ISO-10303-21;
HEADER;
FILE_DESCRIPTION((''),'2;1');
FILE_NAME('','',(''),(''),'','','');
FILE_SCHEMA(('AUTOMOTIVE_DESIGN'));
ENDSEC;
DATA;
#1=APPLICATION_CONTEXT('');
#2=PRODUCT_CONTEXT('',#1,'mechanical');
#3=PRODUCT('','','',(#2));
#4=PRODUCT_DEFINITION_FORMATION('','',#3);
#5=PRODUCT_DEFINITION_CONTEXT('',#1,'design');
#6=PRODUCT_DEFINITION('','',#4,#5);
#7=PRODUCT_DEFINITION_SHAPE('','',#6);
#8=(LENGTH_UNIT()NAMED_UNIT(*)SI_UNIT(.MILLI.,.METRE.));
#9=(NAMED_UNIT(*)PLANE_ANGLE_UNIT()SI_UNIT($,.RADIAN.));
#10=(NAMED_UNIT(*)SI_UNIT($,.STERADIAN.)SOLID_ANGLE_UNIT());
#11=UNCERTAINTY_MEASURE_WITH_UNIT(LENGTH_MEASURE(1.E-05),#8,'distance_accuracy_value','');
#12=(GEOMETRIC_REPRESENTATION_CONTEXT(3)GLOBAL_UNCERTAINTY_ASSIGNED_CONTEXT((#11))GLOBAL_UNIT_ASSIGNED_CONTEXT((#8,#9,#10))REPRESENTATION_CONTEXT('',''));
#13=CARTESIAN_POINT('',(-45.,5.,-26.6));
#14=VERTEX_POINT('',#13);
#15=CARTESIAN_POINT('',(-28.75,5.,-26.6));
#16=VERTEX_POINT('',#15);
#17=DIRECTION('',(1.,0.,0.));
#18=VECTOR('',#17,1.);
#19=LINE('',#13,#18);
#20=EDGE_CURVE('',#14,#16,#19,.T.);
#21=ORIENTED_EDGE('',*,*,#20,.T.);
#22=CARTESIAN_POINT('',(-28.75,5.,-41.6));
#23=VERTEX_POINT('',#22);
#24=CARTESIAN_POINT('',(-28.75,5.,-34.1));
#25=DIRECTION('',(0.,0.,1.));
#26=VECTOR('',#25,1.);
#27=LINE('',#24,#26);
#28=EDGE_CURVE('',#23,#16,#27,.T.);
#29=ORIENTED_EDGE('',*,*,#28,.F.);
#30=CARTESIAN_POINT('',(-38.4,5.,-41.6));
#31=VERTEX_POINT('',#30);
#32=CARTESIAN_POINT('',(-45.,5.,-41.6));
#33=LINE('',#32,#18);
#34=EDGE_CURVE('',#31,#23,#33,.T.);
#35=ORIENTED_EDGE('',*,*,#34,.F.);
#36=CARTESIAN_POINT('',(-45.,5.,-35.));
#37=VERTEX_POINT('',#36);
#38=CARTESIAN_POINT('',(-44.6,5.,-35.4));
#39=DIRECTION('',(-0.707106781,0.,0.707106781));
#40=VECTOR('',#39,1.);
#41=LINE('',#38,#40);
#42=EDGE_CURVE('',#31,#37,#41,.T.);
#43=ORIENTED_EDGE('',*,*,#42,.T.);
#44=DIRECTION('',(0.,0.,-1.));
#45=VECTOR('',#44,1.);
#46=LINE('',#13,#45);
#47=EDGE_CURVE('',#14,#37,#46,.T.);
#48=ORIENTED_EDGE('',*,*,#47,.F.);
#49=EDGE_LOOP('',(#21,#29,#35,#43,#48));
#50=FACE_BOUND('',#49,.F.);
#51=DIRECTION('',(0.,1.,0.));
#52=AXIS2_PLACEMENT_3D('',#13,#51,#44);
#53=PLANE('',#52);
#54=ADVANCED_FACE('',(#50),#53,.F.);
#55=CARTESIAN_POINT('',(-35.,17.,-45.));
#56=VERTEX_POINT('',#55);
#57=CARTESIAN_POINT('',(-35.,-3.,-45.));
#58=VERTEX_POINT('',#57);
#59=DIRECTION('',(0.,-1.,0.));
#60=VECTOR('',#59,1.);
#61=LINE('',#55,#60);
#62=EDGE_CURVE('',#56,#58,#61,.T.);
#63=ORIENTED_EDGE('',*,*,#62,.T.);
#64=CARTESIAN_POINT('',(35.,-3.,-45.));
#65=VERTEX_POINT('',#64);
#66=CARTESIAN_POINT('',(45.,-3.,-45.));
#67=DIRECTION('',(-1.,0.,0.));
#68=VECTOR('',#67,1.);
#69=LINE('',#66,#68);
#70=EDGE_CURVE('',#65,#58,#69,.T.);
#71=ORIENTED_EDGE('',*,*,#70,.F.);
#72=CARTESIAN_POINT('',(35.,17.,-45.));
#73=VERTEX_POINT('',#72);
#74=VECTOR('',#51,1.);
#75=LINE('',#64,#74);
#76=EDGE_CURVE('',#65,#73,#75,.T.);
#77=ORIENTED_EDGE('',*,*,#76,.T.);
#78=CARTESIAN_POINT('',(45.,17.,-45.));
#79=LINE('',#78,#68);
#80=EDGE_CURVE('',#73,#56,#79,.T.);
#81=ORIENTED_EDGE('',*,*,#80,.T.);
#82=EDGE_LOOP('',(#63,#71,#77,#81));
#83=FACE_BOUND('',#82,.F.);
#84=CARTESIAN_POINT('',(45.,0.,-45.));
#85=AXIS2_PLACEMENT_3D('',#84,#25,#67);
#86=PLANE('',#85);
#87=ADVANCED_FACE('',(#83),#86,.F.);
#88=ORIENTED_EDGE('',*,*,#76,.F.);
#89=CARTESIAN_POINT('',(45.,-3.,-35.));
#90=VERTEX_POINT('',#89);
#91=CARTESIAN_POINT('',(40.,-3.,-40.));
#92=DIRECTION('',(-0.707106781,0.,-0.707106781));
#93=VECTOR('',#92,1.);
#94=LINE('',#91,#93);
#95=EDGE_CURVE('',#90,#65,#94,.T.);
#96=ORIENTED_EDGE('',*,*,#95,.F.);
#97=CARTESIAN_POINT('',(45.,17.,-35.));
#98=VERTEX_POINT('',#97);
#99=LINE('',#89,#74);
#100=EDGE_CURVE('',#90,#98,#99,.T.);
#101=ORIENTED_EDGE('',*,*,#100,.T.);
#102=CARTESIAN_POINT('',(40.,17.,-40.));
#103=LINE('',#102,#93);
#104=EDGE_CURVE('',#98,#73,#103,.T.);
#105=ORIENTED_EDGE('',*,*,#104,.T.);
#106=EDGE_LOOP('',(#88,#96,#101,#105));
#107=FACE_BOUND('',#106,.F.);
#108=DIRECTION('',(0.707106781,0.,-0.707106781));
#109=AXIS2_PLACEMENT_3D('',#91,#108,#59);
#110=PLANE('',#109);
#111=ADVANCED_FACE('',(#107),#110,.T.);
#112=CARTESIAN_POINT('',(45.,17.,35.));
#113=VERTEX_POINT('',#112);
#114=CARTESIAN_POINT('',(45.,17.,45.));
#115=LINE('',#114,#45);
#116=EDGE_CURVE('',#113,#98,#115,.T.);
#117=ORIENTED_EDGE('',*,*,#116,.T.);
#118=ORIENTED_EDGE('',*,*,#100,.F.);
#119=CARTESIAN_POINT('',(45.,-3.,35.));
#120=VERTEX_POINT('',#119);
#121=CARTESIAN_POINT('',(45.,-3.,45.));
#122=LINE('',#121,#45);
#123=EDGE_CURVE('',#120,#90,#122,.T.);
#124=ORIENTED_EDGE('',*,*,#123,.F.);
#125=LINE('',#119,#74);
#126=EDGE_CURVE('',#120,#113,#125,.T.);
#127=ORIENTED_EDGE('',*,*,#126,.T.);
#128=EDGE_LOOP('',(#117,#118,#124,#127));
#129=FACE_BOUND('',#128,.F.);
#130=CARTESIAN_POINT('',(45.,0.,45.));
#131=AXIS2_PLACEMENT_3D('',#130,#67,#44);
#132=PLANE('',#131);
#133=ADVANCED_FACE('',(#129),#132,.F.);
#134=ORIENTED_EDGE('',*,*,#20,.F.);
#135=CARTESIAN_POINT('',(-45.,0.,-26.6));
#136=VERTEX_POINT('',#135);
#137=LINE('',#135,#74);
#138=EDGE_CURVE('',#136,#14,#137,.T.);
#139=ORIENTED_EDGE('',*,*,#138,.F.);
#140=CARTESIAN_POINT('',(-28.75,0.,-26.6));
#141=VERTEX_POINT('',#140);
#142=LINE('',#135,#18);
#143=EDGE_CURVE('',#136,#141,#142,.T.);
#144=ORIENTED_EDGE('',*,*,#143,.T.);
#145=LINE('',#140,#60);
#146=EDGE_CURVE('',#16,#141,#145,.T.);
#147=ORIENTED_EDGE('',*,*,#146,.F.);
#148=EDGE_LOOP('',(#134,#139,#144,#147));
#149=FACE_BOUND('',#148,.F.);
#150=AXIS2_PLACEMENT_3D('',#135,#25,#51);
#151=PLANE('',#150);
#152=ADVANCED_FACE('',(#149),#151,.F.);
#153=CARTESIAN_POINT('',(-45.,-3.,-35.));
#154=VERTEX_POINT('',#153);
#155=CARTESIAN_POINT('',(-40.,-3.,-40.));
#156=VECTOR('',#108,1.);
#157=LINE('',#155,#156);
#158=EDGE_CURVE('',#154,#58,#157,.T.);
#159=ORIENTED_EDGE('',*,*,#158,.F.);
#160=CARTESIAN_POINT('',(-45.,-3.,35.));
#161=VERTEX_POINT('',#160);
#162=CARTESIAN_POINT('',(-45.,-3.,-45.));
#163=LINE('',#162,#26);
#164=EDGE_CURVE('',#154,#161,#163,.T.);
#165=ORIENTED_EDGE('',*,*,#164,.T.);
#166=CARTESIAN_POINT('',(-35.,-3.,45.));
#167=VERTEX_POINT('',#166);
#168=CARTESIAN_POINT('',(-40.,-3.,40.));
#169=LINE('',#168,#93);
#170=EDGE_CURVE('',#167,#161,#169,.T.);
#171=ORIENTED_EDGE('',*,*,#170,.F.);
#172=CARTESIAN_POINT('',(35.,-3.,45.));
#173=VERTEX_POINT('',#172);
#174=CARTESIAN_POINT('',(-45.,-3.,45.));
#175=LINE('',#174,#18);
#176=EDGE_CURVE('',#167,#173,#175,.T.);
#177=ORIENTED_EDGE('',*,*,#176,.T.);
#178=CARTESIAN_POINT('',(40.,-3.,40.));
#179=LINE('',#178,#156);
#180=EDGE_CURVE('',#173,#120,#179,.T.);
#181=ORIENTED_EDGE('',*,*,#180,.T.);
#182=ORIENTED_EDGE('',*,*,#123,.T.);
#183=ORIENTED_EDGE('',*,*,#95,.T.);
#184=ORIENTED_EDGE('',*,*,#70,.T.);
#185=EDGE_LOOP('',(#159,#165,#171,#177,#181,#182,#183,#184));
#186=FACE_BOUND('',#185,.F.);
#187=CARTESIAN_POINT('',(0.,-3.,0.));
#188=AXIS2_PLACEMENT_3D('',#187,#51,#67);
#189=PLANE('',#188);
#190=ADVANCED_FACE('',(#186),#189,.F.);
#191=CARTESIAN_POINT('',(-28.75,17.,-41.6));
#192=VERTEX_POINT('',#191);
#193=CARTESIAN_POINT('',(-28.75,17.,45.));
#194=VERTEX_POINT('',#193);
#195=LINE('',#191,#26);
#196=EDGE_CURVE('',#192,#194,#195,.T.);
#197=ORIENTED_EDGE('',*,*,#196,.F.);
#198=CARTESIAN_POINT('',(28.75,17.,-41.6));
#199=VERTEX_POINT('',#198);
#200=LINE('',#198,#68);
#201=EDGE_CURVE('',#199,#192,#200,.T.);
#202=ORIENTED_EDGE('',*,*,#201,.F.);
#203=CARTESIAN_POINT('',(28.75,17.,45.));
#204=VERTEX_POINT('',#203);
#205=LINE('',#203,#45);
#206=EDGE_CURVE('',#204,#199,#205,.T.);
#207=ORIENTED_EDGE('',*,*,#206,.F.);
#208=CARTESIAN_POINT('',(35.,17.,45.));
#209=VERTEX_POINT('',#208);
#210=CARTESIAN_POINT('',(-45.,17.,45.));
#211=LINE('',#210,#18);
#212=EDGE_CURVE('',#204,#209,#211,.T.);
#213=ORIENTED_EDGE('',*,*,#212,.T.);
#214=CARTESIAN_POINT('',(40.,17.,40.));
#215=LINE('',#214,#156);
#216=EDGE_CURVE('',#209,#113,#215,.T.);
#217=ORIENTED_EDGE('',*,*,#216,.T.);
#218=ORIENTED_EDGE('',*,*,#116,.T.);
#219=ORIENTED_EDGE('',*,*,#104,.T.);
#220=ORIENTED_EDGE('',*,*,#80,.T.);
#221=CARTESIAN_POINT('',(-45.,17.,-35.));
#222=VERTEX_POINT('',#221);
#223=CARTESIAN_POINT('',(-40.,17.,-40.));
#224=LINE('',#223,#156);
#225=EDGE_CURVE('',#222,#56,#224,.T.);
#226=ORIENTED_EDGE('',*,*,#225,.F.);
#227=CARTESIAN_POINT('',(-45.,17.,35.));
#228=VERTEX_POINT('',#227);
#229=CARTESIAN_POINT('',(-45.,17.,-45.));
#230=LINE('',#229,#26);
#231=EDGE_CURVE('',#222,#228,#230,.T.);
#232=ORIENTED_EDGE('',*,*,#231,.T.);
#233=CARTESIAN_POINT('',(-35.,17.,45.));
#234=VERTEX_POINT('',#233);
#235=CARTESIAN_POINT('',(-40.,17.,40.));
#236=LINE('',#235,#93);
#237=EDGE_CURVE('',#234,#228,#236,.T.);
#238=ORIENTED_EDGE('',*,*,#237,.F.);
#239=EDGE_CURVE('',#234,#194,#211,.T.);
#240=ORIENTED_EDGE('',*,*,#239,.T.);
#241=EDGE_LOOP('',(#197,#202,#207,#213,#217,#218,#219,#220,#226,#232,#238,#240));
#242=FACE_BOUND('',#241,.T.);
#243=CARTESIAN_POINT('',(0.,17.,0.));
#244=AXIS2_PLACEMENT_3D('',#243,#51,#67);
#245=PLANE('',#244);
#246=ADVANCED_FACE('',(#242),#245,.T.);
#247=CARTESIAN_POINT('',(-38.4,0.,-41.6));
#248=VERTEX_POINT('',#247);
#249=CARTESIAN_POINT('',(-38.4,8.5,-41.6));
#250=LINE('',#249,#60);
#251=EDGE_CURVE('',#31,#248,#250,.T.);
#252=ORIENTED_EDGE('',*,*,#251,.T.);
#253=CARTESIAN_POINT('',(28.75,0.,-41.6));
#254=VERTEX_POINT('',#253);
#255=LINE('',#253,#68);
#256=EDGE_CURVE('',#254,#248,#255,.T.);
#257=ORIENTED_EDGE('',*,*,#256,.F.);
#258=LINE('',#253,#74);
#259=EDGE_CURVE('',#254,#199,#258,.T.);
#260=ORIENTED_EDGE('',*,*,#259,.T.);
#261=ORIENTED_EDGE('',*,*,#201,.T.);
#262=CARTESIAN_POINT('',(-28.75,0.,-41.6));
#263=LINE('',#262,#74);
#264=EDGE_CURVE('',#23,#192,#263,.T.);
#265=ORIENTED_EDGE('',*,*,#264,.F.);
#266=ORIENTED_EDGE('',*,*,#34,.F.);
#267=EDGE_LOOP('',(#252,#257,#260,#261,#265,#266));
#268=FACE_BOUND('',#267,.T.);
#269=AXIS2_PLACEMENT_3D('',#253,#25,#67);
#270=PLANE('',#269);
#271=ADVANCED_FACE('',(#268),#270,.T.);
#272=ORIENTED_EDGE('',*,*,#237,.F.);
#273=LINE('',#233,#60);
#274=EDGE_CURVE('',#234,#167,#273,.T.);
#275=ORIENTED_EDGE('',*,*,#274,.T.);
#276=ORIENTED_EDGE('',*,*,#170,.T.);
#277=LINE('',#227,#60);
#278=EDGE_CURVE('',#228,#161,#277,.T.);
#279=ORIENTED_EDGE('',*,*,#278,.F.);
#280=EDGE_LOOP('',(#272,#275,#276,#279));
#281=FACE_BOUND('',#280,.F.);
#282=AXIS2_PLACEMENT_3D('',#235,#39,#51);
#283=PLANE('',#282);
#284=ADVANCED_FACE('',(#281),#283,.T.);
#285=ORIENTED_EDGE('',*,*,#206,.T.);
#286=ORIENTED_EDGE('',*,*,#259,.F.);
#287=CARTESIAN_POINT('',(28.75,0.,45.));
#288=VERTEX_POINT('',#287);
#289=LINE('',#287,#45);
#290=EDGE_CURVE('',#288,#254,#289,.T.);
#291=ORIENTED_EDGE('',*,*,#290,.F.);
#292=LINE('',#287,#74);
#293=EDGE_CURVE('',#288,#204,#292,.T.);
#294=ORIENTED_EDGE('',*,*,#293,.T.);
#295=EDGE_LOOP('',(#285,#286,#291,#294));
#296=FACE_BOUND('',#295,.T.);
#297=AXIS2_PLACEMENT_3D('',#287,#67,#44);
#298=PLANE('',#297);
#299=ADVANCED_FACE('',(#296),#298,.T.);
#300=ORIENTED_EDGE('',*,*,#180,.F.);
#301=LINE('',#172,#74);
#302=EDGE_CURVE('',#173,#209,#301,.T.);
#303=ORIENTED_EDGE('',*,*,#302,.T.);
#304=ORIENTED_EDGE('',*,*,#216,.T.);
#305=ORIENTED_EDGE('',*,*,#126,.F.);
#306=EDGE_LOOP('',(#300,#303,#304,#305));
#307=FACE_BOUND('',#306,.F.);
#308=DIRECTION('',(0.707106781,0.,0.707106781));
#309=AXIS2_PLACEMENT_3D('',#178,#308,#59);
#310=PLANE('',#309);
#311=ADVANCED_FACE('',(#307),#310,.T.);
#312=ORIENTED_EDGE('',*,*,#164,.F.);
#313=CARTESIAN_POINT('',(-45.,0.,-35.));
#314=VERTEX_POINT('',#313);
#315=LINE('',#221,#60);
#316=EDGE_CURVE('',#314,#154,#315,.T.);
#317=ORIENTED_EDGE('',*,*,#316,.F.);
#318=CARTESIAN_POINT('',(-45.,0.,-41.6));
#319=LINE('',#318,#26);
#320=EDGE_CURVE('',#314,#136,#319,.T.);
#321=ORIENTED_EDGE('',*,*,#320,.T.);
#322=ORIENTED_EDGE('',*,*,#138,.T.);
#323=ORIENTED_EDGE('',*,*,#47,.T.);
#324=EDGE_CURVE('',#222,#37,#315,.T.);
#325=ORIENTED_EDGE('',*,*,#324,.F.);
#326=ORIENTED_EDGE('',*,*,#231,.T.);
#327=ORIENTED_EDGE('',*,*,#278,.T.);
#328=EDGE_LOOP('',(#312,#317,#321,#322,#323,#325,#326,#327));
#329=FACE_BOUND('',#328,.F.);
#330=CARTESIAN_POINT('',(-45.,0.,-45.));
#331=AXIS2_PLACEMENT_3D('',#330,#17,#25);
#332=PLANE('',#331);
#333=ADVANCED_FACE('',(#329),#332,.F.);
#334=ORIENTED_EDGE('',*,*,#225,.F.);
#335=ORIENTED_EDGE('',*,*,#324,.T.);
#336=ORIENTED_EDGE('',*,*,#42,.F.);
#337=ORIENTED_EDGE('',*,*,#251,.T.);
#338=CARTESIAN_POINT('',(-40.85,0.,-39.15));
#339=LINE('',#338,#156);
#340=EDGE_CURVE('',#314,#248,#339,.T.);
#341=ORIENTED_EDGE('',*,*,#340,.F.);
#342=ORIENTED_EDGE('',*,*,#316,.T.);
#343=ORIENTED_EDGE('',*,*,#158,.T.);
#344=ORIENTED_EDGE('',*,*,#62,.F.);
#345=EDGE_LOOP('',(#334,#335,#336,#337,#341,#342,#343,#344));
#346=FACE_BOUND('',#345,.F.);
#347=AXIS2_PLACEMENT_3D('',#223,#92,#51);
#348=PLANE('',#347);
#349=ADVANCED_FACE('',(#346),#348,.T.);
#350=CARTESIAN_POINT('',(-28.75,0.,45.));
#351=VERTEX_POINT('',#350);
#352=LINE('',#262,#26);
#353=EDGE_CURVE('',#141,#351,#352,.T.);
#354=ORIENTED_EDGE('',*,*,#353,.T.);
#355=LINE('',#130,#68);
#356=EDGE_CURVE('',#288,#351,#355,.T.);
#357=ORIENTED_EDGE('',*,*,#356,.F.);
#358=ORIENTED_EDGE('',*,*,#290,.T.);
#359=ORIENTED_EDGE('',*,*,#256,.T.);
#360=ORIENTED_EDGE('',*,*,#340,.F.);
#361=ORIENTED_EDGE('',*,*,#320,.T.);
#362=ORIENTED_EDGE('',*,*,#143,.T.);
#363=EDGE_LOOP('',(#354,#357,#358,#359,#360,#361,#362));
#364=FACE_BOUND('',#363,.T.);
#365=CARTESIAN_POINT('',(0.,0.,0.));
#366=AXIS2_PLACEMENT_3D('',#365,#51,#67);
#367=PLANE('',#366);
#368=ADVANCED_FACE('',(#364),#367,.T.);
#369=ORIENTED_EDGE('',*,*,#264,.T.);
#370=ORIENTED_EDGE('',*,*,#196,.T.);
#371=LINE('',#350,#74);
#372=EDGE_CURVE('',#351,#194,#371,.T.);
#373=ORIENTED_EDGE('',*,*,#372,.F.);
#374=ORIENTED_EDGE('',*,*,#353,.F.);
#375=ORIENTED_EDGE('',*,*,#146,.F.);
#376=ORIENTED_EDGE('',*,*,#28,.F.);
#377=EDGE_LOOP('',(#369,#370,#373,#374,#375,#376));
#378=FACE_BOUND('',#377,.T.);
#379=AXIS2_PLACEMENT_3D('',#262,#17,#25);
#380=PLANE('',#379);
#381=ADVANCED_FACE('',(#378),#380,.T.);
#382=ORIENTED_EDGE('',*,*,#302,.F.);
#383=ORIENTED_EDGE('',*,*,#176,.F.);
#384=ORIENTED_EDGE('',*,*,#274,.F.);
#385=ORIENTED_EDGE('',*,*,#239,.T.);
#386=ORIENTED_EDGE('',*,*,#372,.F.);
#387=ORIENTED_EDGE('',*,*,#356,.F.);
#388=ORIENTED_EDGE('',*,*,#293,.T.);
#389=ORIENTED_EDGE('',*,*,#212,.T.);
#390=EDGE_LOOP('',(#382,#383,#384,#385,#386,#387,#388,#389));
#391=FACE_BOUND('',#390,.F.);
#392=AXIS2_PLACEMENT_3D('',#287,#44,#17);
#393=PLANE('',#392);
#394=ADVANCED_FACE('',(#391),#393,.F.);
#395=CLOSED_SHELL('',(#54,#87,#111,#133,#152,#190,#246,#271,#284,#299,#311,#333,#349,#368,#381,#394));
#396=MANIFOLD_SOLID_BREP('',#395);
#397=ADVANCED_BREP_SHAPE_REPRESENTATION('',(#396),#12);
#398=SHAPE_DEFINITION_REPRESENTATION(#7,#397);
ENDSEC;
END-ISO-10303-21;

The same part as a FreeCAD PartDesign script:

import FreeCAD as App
import Part
import Sketcher

V = App.Vector
Q = App.Units.Quantity


def edges_at(feature, points):
    """Names of the edges that pass closest to the given points."""
    edges = feature.Shape.Edges
    near = lambda p: min(range(len(edges)), key=lambda i: edges[i].distToShape(Part.Vertex(*p))[0])
    return sorted({f"Edge{near(p) + 1}" for p in points})


def add_polygon(sketch, points):
    """Adds a closed chain of lines whose ends are joined by coincident constraints."""
    first, n = sketch.GeometryCount, len(points)
    for a, b in zip(points, points[1:] + points[:1]):
        sketch.addGeometry(Part.LineSegment(App.Vector(*a, 0), App.Vector(*b, 0)), False)
    for i in range(n):
        sketch.addConstraint(Sketcher.Constraint("Coincident", first + i, 2, first + (i + 1) % n, 1))

doc = App.newDocument("Part")
body = doc.addObject("PartDesign::Body", "Body")

sketch1 = body.newObject("Sketcher::SketchObject", "Sketch")
sketch1.AttachmentSupport = (doc.getObject("XZ_Plane"), [""])
sketch1.MapMode = "FlatFace"
add_polygon(sketch1, [(45, 45), (45, -45), (-45, -45), (-45, 45)])
sketch1.addConstraint([
    Sketcher.Constraint("Vertical", 0),
    Sketcher.Constraint("Horizontal", 1),
    Sketcher.Constraint("Vertical", 2),
    Sketcher.Constraint("Horizontal", 3),
    Sketcher.Constraint("Symmetric", 0, 2, 2, 2, -1, 1),
    Sketcher.Constraint("Equal", 3, 0),
    Sketcher.Constraint("DistanceX", 1, 2, 1, 1, Q("90 mm")),
])
pad1 = body.newObject("PartDesign::Pad", "Pad")
pad1.Profile = sketch1
pad1.Length = 3

sketch2 = body.newObject("Sketcher::SketchObject", "Sketch001")
sketch2.AttachmentSupport = (doc.getObject("XZ_Plane"), [""])
sketch2.MapMode = "FlatFace"
add_polygon(sketch2, [(29, -42), (29, 45), (45, 45), (45, -45), (-45, -45), (-45, 45), (-29, 45), (-29, -42)])
sketch2.addConstraint([
    Sketcher.Constraint("Vertical", 0),
    Sketcher.Constraint("Horizontal", 1),
    Sketcher.Constraint("Vertical", 2),
    Sketcher.Constraint("Horizontal", 3),
    Sketcher.Constraint("Vertical", 4),
    Sketcher.Constraint("Horizontal", 5),
    Sketcher.Constraint("Vertical", 6),
    Sketcher.Constraint("Horizontal", 7),
    Sketcher.Constraint("Symmetric", 1, 2, 3, 2, -1, 1),
    Sketcher.Constraint("Symmetric", 0, 2, 5, 2, -2),
    Sketcher.Constraint("Equal", 3, 2),
    Sketcher.Constraint("DistanceX", 3, 2, 3, 1, Q("90 mm")),
    Sketcher.Constraint("DistanceX", 7, 1, 7, 2, Q("57.5 mm")),
    Sketcher.Constraint("DistanceY", 0, 1, 0, 2, Q("86.6 mm")),
])
pad2 = body.newObject("PartDesign::Pad", "Pad001")
pad2.Profile = sketch2
pad2.Length = 17
pad2.Reversed = True
doc.recompute()

chamfer = body.newObject("PartDesign::Chamfer", "Chamfer")
chamfer.Base = (pad2, edges_at(pad2, [
    (-45, 7, 45),
    (-45, 7, -45),
    (45, 7, -45),
    (45, 7, 45),
]))
chamfer.Size = 10

sketch3 = body.newObject("Sketcher::SketchObject", "Sketch002")
sketch3.AttachmentSupport = (doc.getObject("YZ_Plane"), [""])
sketch3.MapMode = "FlatFace"
sketch3.AttachmentOffset = App.Placement(V(0, 0, -45), App.Rotation())
add_polygon(sketch3, [(5, -42), (0, -42), (0, -27), (5, -27)])
sketch3.addConstraint([
    Sketcher.Constraint("Horizontal", 0),
    Sketcher.Constraint("Vertical", 1),
    Sketcher.Constraint("Horizontal", 2),
    Sketcher.Constraint("Vertical", 3),
    Sketcher.Constraint("PointOnObject", 0, 2, -2),
    Sketcher.Constraint("DistanceX", 0, 2, 0, 1, Q("5 mm")),
    Sketcher.Constraint("DistanceY", 1, 1, 1, 2, Q("15 mm")),
    Sketcher.Constraint("DistanceY", 0, 2, -1, 1, Q("41.6 mm")),
])
pocket1 = body.newObject("PartDesign::Pocket", "Pocket")
pocket1.Profile = sketch3
pocket1.Length = 16.75
pocket1.Reversed = True

doc.recompute()
